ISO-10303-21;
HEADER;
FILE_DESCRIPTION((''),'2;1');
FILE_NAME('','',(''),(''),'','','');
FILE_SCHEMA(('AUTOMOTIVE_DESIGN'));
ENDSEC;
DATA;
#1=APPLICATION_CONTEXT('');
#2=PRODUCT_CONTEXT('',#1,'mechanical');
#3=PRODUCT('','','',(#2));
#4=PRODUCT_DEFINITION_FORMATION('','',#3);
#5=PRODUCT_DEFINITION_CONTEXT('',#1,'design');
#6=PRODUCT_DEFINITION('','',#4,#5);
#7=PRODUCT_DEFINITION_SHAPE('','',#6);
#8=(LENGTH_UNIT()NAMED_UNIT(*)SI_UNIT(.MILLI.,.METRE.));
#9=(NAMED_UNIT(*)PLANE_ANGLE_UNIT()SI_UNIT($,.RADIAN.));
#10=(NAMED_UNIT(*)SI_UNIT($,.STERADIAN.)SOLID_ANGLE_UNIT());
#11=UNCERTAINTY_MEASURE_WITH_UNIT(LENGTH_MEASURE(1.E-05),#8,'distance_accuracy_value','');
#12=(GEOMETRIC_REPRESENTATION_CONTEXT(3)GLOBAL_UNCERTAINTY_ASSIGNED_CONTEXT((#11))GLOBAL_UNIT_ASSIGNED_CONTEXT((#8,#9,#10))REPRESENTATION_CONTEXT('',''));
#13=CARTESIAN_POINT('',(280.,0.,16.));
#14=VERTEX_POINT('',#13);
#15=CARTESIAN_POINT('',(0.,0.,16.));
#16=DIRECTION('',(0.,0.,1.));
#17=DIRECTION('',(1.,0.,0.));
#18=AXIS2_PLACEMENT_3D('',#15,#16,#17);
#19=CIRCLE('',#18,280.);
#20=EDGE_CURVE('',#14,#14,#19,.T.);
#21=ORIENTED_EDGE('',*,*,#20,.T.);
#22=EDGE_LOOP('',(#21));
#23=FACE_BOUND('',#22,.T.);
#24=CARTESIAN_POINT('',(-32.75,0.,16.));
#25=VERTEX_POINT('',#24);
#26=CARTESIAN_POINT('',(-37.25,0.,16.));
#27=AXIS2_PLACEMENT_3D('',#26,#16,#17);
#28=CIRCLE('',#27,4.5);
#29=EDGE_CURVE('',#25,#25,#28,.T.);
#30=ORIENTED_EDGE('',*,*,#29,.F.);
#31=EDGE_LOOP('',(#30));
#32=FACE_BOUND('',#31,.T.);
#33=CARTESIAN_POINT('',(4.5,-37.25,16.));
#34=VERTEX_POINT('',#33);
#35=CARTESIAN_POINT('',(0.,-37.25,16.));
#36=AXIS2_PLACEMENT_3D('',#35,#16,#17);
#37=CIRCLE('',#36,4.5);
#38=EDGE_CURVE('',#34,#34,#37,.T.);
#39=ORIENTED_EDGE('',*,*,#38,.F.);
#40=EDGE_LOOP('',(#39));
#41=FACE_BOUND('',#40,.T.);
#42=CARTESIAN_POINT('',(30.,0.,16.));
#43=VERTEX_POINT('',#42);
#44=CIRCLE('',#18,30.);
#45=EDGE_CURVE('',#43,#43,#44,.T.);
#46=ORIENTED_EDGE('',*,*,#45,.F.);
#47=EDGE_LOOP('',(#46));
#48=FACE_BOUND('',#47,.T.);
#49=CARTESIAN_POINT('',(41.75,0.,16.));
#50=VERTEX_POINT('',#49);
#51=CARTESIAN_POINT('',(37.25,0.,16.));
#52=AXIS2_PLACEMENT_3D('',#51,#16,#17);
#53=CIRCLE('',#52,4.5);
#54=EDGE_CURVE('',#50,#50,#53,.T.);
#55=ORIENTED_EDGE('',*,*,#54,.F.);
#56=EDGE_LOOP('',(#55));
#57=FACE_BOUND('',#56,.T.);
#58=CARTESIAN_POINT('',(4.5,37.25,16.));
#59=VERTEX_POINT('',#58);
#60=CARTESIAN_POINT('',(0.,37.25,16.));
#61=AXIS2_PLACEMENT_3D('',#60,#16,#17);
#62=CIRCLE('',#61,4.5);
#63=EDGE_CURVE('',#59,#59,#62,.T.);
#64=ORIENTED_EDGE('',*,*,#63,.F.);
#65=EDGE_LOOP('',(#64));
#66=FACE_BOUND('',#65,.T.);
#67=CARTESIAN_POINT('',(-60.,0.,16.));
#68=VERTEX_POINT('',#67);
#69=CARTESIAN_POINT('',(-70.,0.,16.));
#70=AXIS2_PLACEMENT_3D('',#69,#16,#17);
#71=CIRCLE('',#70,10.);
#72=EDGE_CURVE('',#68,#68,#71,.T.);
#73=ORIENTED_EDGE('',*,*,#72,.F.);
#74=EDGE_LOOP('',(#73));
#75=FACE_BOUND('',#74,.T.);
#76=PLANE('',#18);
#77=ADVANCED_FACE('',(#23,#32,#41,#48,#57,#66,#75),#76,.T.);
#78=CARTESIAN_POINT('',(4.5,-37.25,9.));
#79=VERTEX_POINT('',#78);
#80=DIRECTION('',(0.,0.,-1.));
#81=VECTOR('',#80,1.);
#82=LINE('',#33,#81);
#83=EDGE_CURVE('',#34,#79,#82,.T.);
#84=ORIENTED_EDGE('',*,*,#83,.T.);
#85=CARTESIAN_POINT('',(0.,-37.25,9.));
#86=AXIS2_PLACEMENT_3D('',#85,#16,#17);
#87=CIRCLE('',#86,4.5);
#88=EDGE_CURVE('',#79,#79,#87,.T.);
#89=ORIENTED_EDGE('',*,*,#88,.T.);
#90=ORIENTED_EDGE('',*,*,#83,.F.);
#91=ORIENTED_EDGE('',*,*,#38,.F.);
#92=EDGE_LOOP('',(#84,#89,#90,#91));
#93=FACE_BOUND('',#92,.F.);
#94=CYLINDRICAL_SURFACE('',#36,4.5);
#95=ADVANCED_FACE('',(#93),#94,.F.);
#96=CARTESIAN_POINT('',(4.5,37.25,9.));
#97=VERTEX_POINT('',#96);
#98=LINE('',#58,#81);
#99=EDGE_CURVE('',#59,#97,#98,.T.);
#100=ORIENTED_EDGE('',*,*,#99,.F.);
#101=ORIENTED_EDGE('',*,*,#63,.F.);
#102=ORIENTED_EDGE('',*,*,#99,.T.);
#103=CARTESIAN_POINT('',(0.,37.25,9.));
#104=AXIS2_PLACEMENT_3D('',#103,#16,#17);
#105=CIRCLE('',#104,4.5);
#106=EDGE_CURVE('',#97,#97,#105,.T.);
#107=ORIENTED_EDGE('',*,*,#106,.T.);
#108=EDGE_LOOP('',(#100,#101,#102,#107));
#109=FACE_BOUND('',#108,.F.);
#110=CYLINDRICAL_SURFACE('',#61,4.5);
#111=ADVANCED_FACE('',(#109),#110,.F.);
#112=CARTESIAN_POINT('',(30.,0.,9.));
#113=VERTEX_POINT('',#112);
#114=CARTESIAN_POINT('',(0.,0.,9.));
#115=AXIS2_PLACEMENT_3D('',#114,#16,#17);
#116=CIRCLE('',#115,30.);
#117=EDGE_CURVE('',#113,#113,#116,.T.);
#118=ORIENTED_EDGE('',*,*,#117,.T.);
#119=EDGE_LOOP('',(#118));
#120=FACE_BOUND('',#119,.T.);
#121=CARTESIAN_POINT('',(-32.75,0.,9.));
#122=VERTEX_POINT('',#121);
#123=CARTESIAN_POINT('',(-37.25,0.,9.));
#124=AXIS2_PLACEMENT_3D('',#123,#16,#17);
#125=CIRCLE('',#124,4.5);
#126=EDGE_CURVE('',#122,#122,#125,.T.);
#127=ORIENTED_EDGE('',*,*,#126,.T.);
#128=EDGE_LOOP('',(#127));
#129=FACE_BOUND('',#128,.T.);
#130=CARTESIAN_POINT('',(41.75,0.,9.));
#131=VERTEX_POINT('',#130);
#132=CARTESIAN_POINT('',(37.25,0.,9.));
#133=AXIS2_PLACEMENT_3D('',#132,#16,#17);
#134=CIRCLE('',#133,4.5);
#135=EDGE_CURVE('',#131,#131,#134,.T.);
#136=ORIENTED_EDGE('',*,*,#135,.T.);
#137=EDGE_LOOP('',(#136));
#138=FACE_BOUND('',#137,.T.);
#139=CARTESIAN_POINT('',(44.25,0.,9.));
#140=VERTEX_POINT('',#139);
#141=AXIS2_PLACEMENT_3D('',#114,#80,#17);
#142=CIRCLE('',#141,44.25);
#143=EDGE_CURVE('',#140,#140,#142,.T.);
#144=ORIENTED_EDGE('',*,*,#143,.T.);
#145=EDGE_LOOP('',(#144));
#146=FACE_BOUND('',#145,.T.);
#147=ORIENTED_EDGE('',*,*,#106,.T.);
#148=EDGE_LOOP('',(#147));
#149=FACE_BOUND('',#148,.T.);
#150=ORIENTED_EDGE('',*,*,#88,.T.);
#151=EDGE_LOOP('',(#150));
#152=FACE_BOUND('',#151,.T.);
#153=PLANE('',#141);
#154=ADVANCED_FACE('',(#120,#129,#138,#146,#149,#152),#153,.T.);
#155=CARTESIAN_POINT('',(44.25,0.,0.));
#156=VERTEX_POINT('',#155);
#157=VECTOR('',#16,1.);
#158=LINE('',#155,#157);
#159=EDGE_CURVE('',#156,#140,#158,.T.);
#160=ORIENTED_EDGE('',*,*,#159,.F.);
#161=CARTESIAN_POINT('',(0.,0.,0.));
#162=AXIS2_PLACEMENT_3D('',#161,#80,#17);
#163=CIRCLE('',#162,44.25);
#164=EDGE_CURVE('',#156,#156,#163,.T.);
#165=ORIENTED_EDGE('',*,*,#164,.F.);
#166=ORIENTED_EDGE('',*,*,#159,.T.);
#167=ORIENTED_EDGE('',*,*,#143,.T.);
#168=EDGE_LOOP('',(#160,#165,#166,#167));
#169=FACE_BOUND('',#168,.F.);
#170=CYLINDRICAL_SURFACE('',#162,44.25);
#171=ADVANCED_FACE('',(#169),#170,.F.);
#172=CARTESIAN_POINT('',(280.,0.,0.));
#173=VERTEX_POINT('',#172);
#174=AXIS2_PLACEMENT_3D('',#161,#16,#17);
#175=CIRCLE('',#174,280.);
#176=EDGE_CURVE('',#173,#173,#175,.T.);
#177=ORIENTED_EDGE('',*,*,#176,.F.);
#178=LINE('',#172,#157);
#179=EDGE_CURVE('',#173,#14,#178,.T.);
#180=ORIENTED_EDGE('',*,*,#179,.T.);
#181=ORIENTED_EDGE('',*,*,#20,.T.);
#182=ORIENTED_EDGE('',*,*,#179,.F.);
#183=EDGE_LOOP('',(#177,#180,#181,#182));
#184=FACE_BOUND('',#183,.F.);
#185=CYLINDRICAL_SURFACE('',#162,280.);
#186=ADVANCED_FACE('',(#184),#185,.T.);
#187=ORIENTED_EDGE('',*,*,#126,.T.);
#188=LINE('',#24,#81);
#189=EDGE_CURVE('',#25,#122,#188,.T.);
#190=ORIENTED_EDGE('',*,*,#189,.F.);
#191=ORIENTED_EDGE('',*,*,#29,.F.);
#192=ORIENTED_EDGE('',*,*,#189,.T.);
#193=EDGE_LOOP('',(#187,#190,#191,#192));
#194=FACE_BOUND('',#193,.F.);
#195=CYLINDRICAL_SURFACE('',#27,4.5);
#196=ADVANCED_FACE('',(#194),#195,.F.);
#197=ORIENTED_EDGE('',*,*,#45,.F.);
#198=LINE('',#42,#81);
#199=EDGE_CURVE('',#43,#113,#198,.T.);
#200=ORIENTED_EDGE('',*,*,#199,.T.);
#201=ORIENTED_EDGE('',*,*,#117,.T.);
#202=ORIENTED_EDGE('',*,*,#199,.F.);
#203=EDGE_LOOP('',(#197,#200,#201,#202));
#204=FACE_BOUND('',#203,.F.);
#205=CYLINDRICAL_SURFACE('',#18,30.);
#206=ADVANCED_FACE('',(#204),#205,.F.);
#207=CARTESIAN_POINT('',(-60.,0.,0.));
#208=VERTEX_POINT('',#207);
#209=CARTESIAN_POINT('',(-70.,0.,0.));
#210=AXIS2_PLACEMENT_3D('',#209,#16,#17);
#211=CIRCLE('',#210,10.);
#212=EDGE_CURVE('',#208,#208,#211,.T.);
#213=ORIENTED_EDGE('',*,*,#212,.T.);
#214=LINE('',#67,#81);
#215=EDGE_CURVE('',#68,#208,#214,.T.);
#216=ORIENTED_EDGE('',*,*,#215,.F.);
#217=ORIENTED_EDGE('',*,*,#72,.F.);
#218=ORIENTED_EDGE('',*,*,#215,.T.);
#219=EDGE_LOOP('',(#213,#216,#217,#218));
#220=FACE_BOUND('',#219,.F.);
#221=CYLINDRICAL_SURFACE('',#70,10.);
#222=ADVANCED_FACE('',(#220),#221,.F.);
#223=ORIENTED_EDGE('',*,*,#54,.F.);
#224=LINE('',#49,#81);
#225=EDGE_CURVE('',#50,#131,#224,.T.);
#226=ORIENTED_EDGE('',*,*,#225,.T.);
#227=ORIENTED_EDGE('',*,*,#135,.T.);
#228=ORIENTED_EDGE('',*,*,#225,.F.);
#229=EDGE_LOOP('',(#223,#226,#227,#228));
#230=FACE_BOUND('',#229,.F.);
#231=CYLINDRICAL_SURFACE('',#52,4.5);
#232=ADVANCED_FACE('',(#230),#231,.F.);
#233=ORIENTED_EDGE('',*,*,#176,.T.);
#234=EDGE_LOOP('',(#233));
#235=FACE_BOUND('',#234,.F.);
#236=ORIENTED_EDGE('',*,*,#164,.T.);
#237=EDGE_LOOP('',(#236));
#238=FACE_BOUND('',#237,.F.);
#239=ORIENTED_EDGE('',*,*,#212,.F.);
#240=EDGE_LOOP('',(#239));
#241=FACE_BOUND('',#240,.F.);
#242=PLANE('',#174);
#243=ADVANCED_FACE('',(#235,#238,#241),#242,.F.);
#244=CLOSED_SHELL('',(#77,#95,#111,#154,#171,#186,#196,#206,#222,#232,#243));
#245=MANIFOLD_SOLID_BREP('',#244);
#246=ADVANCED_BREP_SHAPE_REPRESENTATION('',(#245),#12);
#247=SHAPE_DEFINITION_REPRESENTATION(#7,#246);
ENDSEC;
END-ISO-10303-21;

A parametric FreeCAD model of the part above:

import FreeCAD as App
import Part
import Sketcher
from FreeCAD import Vector

doc = App.newDocument("Part")
body = doc.addObject("PartDesign::Body", "Body")

# Sketch on XY plane
sketch1 = body.newObject("Sketcher::SketchObject", "Sketch")
sketch1.AttachmentSupport = (doc.getObject("XY_Plane"), [""])
sketch1.MapMode = "FlatFace"
sketch1.addGeometry(Part.Circle(Vector(0, 0, 0), Vector(0, 0, 1), 280), False)
sketch1.addConstraint([
    Sketcher.Constraint("Coincident", 0, 3, -1, 1),
    Sketcher.Constraint("Diameter", 0, 560.0),
])
pad1 = body.newObject("PartDesign::Pad", "Pad")
pad1.Profile = sketch1
pad1.Length = 16

# Sketch on XY plane
sketch2 = body.newObject("Sketcher::SketchObject", "Sketch001")
sketch2.AttachmentSupport = (doc.getObject("XY_Plane"), [""])
sketch2.MapMode = "FlatFace"
sketch2.AttachmentOffset = App.Placement(Vector(0, 0, 16), App.Rotation())
sketch2.addGeometry([
    Part.Circle(Vector(0, 0, 0), Vector(0, 0, 1), 30),  # 0
    Part.Circle(Vector(-70, 0, 0), Vector(0, 0, 1), 10),  # 1
    Part.Circle(Vector(-37.2, 0, 0), Vector(0, 0, 1), 4.5),  # 2
    Part.Circle(Vector(0, 37.2, 0), Vector(0, 0, 1), 4.5),  # 3
    Part.Circle(Vector(37.2, 0, 0), Vector(0, 0, 1), 4.5),  # 4
    Part.Circle(Vector(0, -37.2, 0), Vector(0, 0, 1), 4.5),  # 5
], False)
sketch2.addConstraint([
    Sketcher.Constraint("Coincident", 0, 3, -1, 1),
    Sketcher.Constraint("Equal", 2, 3),
    Sketcher.Constraint("Equal", 3, 4),
    Sketcher.Constraint("Equal", 4, 5),
    Sketcher.Constraint("Symmetric", 2, 3, 4, 3, -1, 1),
    Sketcher.Constraint("Symmetric", 3, 3, 5, 3, -1, 1),
    Sketcher.Constraint("PointOnObject", 1, 3, -1),
    Sketcher.Constraint("PointOnObject", 2, 3, -1),
    Sketcher.Constraint("PointOnObject", 3, 3, -2),
    Sketcher.Constraint("Diameter", 0, 60.0),
    Sketcher.Constraint("Diameter", 1, 20.0),
    Sketcher.Constraint("Diameter", 2, 9.0),
    Sketcher.Constraint("DistanceX", 1, 3, -1, 1, 70.0),
    Sketcher.Constraint("DistanceX", 2, 3, 4, 3, 74.5),
    Sketcher.Constraint("DistanceY", 5, 3, 3, 3, 74.5),
])
pocket1 = body.newObject("PartDesign::Pocket", "Pocket")
pocket1.Profile = sketch2
pocket1.Length = 25

# Sketch on XY plane
sketch3 = body.newObject("Sketcher::SketchObject", "Sketch002")
sketch3.AttachmentSupport = (doc.getObject("XY_Plane"), [""])
sketch3.MapMode = "FlatFace"
sketch3.addGeometry(Part.Circle(Vector(0, 0, 0), Vector(0, 0, 1), 44), False)
sketch3.addConstraint([
    Sketcher.Constraint("Coincident", 0, 3, -1, 1),
    Sketcher.Constraint("Diameter", 0, 88.5),
])
pocket2 = body.newObject("PartDesign::Pocket", "Pocket001")
pocket2.Profile = sketch3
pocket2.Length = 9
pocket2.Reversed = True

doc.recompute()
